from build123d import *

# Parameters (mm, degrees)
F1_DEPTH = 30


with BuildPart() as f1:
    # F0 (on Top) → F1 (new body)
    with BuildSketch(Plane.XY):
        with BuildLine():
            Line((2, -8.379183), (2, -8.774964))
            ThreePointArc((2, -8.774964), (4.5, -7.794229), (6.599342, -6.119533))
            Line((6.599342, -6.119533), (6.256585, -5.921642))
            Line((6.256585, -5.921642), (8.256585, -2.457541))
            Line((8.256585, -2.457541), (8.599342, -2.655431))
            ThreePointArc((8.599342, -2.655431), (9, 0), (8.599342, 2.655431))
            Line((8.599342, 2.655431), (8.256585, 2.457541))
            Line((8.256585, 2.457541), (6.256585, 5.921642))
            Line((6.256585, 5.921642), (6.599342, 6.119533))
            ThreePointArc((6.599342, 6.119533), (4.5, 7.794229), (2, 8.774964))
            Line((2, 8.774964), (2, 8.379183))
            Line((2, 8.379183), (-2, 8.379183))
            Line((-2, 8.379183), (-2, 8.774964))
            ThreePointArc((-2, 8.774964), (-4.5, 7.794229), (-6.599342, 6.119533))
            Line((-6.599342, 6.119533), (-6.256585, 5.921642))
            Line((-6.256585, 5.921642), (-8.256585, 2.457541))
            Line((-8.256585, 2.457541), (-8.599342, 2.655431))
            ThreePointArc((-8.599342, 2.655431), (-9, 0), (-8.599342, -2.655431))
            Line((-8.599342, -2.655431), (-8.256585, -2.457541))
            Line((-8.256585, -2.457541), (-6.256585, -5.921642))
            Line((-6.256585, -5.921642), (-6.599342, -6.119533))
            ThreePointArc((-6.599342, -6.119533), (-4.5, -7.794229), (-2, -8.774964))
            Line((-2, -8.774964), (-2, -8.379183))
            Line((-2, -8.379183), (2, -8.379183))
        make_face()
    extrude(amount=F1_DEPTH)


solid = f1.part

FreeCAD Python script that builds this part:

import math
import FreeCAD as App
import Part
import Sketcher
from FreeCAD import Vector
Q = App.Units.Quantity

doc = App.newDocument("Part")
body = doc.addObject("PartDesign::Body", "Body")

sketch1 = body.newObject("Sketcher::SketchObject", "Sketch")
sketch1.AttachmentSupport = (doc.getObject("XY_Plane"), [""])
sketch1.MapMode = "FlatFace"
sketch1.addGeometry([
    Part.LineSegment(Vector(2, -8.379183, 0), Vector(2, -8.774964, 0)),
    Part.ArcOfCircle(Part.Circle(Vector(0.000006, -0.00001, 0), Vector(0, 0, 1), 8.999988), math.radians(-77.160437), math.radians(-42.839569)),
    Part.LineSegment(Vector(6.599342, -6.119533, 0), Vector(6.256585, -5.921642, 0)),
    Part.LineSegment(Vector(6.256585, -5.921642, 0), Vector(8.256585, -2.457541, 0)),
    Part.LineSegment(Vector(8.256585, -2.457541, 0), Vector(8.599342, -2.655431, 0)),
    Part.ArcOfCircle(Part.Circle(Vector(0.000004, 0, 0), Vector(0, 0, 1), 8.999996), math.radians(-17.160417), math.radians(17.160417)),
    Part.LineSegment(Vector(8.599342, 2.655431, 0), Vector(8.256585, 2.457541, 0)),
    Part.LineSegment(Vector(8.256585, 2.457541, 0), Vector(6.256585, 5.921642, 0)),
    Part.LineSegment(Vector(6.256585, 5.921642, 0), Vector(6.599342, 6.119533, 0)),
    Part.ArcOfCircle(Part.Circle(Vector(0.000006, 0.00001, 0), Vector(0, 0, 1), 8.999988), math.radians(42.839569), math.radians(77.160437)),
    Part.LineSegment(Vector(2, 8.774964, 0), Vector(2, 8.379183, 0)),
    Part.LineSegment(Vector(2, 8.379183, 0), Vector(-2, 8.379183, 0)),
    Part.LineSegment(Vector(-2, 8.379183, 0), Vector(-2, 8.774964, 0)),
    Part.ArcOfCircle(Part.Circle(Vector(-0.000006, 0.00001, 0), Vector(0, 0, 1), 8.999988), math.radians(102.839563), math.radians(137.160431)),
    Part.LineSegment(Vector(-6.599342, 6.119533, 0), Vector(-6.256585, 5.921642, 0)),
    Part.LineSegment(Vector(-6.256585, 5.921642, 0), Vector(-8.256585, 2.457541, 0)),
    Part.LineSegment(Vector(-8.256585, 2.457541, 0), Vector(-8.599342, 2.655431, 0)),
    Part.ArcOfCircle(Part.Circle(Vector(-0.000004, 0, 0), Vector(0, 0, 1), 8.999996), math.radians(162.839583), math.radians(197.160417)),
    Part.LineSegment(Vector(-8.599342, -2.655431, 0), Vector(-8.256585, -2.457541, 0)),
    Part.LineSegment(Vector(-8.256585, -2.457541, 0), Vector(-6.256585, -5.921642, 0)),
    Part.LineSegment(Vector(-6.256585, -5.921642, 0), Vector(-6.599342, -6.119533, 0)),
    Part.ArcOfCircle(Part.Circle(Vector(-0.000006, -0.00001, 0), Vector(0, 0, 1), 8.999988), math.radians(-137.160431), math.radians(-102.839563)),
    Part.LineSegment(Vector(-2, -8.774964, 0), Vector(-2, -8.379183, 0)),
    Part.LineSegment(Vector(-2, -8.379183, 0), Vector(2, -8.379183, 0)),
], False)
sketch1.addConstraint([
    Sketcher.Constraint("Coincident", 0, 2, 1, 1),
    Sketcher.Constraint("Coincident", 1, 2, 2, 1),
    Sketcher.Constraint("Coincident", 2, 2, 3, 1),
    Sketcher.Constraint("Coincident", 3, 2, 4, 1),
    Sketcher.Constraint("Coincident", 4, 2, 5, 1),
    Sketcher.Constraint("Coincident", 5, 2, 6, 1),
    Sketcher.Constraint("Coincident", 6, 2, 7, 1),
    Sketcher.Constraint("Coincident", 7, 2, 8, 1),
    Sketcher.Constraint("Coincident", 8, 2, 9, 1),
    Sketcher.Constraint("Coincident", 9, 2, 10, 1),
    Sketcher.Constraint("Coincident", 10, 2, 11, 1),
    Sketcher.Constraint("Coincident", 11, 2, 12, 1),
    Sketcher.Constraint("Coincident", 12, 2, 13, 1),
    Sketcher.Constraint("Coincident", 13, 2, 14, 1),
    Sketcher.Constraint("Coincident", 14, 2, 15, 1),
    Sketcher.Constraint("Coincident", 15, 2, 16, 1),
    Sketcher.Constraint("Coincident", 16, 2, 17, 1),
    Sketcher.Constraint("Coincident", 17, 2, 18, 1),
    Sketcher.Constraint("Coincident", 18, 2, 19, 1),
    Sketcher.Constraint("Coincident", 19, 2, 20, 1),
    Sketcher.Constraint("Coincident", 20, 2, 21, 1),
    Sketcher.Constraint("Coincident", 21, 2, 22, 1),
    Sketcher.Constraint("Coincident", 22, 2, 23, 1),
    Sketcher.Constraint("Coincident", 23, 2, 0, 1),
    Sketcher.Constraint("Vertical", 0),
    Sketcher.Constraint("Vertical", 10),
    Sketcher.Constraint("Horizontal", 11),
    Sketcher.Constraint("Vertical", 12),
    Sketcher.Constraint("Vertical", 22),
    Sketcher.Constraint("Horizontal", 23),
    Sketcher.Constraint("Coincident", 5, 3, -1, 1),
    Sketcher.Constraint("Coincident", 17, 3, -1, 1),
    Sketcher.Constraint("Equal", 1, 9),
    Sketcher.Constraint("Equal", 9, 13),
    Sketcher.Constraint("Equal", 5, 17),
    Sketcher.Constraint("Equal", 13, 21),
    Sketcher.Constraint("Symmetric", 1, 3, 13, 3, -1, 1),
    Sketcher.Constraint("Symmetric", 9, 3, 21, 3, -1, 1),
    Sketcher.Constraint("Symmetric", 2, 2, 14, 2, -1, 1),
    Sketcher.Constraint("Symmetric", 3, 2, 15, 2, -1, 1),
    Sketcher.Constraint("Symmetric", 6, 2, 18, 2, -1, 1),
    Sketcher.Constraint("Symmetric", 7, 2, 19, 2, -1, 1),
    Sketcher.Constraint("Symmetric", 10, 2, 22, 2, -1, 1),
    Sketcher.Constraint("Symmetric", 9, 3, 13, 3, -2),
    Sketcher.Constraint("Symmetric", 7, 2, 14, 2, -2),
    Sketcher.Constraint("Symmetric", 6, 2, 15, 2, -2),
    Sketcher.Constraint("Perpendicular", 2, 3),
    Sketcher.Constraint("Perpendicular", 3, 4),
    Sketcher.Constraint("Perpendicular", 6, 7),
    Sketcher.Constraint("Perpendicular", 7, 8),
    Sketcher.Constraint("Perpendicular", 3, 14),
    Sketcher.Constraint("Perpendicular", 15, 16),
    Sketcher.Constraint("Perpendicular", 7, 18),
    Sketcher.Constraint("Perpendicular", 19, 20),
    Sketcher.Constraint("Horizontal", 9, 2, 12, 2),
    Sketcher.Constraint("Horizontal", 0, 2, 21, 2),
    Sketcher.Constraint("Equal", 2, 4),
    Sketcher.Constraint("DistanceX", 11, 2, 11, 1, 4.0),
    Sketcher.Constraint("Angle", 2, Q("149.999981 deg")),
    Sketcher.Constraint("Distance", 3, 3.999999),
    Sketcher.Constraint("Radius", 1, 8.999988),
    Sketcher.Constraint("Radius", 5, 8.999996),
    Sketcher.Constraint("DistanceY", 0, 2, 0, 1, 0.395781),
    Sketcher.Constraint("Distance", 2, 0.395782),
    Sketcher.Constraint("DistanceX", -1, 1, 1, 2, 6.599342),
    Sketcher.Constraint("DistanceY", 0, 2, 1, 2, 2.655431),
])
pad1 = body.newObject("PartDesign::Pad", "Pad")
pad1.Profile = sketch1
pad1.Length = 30

doc.recompute()
